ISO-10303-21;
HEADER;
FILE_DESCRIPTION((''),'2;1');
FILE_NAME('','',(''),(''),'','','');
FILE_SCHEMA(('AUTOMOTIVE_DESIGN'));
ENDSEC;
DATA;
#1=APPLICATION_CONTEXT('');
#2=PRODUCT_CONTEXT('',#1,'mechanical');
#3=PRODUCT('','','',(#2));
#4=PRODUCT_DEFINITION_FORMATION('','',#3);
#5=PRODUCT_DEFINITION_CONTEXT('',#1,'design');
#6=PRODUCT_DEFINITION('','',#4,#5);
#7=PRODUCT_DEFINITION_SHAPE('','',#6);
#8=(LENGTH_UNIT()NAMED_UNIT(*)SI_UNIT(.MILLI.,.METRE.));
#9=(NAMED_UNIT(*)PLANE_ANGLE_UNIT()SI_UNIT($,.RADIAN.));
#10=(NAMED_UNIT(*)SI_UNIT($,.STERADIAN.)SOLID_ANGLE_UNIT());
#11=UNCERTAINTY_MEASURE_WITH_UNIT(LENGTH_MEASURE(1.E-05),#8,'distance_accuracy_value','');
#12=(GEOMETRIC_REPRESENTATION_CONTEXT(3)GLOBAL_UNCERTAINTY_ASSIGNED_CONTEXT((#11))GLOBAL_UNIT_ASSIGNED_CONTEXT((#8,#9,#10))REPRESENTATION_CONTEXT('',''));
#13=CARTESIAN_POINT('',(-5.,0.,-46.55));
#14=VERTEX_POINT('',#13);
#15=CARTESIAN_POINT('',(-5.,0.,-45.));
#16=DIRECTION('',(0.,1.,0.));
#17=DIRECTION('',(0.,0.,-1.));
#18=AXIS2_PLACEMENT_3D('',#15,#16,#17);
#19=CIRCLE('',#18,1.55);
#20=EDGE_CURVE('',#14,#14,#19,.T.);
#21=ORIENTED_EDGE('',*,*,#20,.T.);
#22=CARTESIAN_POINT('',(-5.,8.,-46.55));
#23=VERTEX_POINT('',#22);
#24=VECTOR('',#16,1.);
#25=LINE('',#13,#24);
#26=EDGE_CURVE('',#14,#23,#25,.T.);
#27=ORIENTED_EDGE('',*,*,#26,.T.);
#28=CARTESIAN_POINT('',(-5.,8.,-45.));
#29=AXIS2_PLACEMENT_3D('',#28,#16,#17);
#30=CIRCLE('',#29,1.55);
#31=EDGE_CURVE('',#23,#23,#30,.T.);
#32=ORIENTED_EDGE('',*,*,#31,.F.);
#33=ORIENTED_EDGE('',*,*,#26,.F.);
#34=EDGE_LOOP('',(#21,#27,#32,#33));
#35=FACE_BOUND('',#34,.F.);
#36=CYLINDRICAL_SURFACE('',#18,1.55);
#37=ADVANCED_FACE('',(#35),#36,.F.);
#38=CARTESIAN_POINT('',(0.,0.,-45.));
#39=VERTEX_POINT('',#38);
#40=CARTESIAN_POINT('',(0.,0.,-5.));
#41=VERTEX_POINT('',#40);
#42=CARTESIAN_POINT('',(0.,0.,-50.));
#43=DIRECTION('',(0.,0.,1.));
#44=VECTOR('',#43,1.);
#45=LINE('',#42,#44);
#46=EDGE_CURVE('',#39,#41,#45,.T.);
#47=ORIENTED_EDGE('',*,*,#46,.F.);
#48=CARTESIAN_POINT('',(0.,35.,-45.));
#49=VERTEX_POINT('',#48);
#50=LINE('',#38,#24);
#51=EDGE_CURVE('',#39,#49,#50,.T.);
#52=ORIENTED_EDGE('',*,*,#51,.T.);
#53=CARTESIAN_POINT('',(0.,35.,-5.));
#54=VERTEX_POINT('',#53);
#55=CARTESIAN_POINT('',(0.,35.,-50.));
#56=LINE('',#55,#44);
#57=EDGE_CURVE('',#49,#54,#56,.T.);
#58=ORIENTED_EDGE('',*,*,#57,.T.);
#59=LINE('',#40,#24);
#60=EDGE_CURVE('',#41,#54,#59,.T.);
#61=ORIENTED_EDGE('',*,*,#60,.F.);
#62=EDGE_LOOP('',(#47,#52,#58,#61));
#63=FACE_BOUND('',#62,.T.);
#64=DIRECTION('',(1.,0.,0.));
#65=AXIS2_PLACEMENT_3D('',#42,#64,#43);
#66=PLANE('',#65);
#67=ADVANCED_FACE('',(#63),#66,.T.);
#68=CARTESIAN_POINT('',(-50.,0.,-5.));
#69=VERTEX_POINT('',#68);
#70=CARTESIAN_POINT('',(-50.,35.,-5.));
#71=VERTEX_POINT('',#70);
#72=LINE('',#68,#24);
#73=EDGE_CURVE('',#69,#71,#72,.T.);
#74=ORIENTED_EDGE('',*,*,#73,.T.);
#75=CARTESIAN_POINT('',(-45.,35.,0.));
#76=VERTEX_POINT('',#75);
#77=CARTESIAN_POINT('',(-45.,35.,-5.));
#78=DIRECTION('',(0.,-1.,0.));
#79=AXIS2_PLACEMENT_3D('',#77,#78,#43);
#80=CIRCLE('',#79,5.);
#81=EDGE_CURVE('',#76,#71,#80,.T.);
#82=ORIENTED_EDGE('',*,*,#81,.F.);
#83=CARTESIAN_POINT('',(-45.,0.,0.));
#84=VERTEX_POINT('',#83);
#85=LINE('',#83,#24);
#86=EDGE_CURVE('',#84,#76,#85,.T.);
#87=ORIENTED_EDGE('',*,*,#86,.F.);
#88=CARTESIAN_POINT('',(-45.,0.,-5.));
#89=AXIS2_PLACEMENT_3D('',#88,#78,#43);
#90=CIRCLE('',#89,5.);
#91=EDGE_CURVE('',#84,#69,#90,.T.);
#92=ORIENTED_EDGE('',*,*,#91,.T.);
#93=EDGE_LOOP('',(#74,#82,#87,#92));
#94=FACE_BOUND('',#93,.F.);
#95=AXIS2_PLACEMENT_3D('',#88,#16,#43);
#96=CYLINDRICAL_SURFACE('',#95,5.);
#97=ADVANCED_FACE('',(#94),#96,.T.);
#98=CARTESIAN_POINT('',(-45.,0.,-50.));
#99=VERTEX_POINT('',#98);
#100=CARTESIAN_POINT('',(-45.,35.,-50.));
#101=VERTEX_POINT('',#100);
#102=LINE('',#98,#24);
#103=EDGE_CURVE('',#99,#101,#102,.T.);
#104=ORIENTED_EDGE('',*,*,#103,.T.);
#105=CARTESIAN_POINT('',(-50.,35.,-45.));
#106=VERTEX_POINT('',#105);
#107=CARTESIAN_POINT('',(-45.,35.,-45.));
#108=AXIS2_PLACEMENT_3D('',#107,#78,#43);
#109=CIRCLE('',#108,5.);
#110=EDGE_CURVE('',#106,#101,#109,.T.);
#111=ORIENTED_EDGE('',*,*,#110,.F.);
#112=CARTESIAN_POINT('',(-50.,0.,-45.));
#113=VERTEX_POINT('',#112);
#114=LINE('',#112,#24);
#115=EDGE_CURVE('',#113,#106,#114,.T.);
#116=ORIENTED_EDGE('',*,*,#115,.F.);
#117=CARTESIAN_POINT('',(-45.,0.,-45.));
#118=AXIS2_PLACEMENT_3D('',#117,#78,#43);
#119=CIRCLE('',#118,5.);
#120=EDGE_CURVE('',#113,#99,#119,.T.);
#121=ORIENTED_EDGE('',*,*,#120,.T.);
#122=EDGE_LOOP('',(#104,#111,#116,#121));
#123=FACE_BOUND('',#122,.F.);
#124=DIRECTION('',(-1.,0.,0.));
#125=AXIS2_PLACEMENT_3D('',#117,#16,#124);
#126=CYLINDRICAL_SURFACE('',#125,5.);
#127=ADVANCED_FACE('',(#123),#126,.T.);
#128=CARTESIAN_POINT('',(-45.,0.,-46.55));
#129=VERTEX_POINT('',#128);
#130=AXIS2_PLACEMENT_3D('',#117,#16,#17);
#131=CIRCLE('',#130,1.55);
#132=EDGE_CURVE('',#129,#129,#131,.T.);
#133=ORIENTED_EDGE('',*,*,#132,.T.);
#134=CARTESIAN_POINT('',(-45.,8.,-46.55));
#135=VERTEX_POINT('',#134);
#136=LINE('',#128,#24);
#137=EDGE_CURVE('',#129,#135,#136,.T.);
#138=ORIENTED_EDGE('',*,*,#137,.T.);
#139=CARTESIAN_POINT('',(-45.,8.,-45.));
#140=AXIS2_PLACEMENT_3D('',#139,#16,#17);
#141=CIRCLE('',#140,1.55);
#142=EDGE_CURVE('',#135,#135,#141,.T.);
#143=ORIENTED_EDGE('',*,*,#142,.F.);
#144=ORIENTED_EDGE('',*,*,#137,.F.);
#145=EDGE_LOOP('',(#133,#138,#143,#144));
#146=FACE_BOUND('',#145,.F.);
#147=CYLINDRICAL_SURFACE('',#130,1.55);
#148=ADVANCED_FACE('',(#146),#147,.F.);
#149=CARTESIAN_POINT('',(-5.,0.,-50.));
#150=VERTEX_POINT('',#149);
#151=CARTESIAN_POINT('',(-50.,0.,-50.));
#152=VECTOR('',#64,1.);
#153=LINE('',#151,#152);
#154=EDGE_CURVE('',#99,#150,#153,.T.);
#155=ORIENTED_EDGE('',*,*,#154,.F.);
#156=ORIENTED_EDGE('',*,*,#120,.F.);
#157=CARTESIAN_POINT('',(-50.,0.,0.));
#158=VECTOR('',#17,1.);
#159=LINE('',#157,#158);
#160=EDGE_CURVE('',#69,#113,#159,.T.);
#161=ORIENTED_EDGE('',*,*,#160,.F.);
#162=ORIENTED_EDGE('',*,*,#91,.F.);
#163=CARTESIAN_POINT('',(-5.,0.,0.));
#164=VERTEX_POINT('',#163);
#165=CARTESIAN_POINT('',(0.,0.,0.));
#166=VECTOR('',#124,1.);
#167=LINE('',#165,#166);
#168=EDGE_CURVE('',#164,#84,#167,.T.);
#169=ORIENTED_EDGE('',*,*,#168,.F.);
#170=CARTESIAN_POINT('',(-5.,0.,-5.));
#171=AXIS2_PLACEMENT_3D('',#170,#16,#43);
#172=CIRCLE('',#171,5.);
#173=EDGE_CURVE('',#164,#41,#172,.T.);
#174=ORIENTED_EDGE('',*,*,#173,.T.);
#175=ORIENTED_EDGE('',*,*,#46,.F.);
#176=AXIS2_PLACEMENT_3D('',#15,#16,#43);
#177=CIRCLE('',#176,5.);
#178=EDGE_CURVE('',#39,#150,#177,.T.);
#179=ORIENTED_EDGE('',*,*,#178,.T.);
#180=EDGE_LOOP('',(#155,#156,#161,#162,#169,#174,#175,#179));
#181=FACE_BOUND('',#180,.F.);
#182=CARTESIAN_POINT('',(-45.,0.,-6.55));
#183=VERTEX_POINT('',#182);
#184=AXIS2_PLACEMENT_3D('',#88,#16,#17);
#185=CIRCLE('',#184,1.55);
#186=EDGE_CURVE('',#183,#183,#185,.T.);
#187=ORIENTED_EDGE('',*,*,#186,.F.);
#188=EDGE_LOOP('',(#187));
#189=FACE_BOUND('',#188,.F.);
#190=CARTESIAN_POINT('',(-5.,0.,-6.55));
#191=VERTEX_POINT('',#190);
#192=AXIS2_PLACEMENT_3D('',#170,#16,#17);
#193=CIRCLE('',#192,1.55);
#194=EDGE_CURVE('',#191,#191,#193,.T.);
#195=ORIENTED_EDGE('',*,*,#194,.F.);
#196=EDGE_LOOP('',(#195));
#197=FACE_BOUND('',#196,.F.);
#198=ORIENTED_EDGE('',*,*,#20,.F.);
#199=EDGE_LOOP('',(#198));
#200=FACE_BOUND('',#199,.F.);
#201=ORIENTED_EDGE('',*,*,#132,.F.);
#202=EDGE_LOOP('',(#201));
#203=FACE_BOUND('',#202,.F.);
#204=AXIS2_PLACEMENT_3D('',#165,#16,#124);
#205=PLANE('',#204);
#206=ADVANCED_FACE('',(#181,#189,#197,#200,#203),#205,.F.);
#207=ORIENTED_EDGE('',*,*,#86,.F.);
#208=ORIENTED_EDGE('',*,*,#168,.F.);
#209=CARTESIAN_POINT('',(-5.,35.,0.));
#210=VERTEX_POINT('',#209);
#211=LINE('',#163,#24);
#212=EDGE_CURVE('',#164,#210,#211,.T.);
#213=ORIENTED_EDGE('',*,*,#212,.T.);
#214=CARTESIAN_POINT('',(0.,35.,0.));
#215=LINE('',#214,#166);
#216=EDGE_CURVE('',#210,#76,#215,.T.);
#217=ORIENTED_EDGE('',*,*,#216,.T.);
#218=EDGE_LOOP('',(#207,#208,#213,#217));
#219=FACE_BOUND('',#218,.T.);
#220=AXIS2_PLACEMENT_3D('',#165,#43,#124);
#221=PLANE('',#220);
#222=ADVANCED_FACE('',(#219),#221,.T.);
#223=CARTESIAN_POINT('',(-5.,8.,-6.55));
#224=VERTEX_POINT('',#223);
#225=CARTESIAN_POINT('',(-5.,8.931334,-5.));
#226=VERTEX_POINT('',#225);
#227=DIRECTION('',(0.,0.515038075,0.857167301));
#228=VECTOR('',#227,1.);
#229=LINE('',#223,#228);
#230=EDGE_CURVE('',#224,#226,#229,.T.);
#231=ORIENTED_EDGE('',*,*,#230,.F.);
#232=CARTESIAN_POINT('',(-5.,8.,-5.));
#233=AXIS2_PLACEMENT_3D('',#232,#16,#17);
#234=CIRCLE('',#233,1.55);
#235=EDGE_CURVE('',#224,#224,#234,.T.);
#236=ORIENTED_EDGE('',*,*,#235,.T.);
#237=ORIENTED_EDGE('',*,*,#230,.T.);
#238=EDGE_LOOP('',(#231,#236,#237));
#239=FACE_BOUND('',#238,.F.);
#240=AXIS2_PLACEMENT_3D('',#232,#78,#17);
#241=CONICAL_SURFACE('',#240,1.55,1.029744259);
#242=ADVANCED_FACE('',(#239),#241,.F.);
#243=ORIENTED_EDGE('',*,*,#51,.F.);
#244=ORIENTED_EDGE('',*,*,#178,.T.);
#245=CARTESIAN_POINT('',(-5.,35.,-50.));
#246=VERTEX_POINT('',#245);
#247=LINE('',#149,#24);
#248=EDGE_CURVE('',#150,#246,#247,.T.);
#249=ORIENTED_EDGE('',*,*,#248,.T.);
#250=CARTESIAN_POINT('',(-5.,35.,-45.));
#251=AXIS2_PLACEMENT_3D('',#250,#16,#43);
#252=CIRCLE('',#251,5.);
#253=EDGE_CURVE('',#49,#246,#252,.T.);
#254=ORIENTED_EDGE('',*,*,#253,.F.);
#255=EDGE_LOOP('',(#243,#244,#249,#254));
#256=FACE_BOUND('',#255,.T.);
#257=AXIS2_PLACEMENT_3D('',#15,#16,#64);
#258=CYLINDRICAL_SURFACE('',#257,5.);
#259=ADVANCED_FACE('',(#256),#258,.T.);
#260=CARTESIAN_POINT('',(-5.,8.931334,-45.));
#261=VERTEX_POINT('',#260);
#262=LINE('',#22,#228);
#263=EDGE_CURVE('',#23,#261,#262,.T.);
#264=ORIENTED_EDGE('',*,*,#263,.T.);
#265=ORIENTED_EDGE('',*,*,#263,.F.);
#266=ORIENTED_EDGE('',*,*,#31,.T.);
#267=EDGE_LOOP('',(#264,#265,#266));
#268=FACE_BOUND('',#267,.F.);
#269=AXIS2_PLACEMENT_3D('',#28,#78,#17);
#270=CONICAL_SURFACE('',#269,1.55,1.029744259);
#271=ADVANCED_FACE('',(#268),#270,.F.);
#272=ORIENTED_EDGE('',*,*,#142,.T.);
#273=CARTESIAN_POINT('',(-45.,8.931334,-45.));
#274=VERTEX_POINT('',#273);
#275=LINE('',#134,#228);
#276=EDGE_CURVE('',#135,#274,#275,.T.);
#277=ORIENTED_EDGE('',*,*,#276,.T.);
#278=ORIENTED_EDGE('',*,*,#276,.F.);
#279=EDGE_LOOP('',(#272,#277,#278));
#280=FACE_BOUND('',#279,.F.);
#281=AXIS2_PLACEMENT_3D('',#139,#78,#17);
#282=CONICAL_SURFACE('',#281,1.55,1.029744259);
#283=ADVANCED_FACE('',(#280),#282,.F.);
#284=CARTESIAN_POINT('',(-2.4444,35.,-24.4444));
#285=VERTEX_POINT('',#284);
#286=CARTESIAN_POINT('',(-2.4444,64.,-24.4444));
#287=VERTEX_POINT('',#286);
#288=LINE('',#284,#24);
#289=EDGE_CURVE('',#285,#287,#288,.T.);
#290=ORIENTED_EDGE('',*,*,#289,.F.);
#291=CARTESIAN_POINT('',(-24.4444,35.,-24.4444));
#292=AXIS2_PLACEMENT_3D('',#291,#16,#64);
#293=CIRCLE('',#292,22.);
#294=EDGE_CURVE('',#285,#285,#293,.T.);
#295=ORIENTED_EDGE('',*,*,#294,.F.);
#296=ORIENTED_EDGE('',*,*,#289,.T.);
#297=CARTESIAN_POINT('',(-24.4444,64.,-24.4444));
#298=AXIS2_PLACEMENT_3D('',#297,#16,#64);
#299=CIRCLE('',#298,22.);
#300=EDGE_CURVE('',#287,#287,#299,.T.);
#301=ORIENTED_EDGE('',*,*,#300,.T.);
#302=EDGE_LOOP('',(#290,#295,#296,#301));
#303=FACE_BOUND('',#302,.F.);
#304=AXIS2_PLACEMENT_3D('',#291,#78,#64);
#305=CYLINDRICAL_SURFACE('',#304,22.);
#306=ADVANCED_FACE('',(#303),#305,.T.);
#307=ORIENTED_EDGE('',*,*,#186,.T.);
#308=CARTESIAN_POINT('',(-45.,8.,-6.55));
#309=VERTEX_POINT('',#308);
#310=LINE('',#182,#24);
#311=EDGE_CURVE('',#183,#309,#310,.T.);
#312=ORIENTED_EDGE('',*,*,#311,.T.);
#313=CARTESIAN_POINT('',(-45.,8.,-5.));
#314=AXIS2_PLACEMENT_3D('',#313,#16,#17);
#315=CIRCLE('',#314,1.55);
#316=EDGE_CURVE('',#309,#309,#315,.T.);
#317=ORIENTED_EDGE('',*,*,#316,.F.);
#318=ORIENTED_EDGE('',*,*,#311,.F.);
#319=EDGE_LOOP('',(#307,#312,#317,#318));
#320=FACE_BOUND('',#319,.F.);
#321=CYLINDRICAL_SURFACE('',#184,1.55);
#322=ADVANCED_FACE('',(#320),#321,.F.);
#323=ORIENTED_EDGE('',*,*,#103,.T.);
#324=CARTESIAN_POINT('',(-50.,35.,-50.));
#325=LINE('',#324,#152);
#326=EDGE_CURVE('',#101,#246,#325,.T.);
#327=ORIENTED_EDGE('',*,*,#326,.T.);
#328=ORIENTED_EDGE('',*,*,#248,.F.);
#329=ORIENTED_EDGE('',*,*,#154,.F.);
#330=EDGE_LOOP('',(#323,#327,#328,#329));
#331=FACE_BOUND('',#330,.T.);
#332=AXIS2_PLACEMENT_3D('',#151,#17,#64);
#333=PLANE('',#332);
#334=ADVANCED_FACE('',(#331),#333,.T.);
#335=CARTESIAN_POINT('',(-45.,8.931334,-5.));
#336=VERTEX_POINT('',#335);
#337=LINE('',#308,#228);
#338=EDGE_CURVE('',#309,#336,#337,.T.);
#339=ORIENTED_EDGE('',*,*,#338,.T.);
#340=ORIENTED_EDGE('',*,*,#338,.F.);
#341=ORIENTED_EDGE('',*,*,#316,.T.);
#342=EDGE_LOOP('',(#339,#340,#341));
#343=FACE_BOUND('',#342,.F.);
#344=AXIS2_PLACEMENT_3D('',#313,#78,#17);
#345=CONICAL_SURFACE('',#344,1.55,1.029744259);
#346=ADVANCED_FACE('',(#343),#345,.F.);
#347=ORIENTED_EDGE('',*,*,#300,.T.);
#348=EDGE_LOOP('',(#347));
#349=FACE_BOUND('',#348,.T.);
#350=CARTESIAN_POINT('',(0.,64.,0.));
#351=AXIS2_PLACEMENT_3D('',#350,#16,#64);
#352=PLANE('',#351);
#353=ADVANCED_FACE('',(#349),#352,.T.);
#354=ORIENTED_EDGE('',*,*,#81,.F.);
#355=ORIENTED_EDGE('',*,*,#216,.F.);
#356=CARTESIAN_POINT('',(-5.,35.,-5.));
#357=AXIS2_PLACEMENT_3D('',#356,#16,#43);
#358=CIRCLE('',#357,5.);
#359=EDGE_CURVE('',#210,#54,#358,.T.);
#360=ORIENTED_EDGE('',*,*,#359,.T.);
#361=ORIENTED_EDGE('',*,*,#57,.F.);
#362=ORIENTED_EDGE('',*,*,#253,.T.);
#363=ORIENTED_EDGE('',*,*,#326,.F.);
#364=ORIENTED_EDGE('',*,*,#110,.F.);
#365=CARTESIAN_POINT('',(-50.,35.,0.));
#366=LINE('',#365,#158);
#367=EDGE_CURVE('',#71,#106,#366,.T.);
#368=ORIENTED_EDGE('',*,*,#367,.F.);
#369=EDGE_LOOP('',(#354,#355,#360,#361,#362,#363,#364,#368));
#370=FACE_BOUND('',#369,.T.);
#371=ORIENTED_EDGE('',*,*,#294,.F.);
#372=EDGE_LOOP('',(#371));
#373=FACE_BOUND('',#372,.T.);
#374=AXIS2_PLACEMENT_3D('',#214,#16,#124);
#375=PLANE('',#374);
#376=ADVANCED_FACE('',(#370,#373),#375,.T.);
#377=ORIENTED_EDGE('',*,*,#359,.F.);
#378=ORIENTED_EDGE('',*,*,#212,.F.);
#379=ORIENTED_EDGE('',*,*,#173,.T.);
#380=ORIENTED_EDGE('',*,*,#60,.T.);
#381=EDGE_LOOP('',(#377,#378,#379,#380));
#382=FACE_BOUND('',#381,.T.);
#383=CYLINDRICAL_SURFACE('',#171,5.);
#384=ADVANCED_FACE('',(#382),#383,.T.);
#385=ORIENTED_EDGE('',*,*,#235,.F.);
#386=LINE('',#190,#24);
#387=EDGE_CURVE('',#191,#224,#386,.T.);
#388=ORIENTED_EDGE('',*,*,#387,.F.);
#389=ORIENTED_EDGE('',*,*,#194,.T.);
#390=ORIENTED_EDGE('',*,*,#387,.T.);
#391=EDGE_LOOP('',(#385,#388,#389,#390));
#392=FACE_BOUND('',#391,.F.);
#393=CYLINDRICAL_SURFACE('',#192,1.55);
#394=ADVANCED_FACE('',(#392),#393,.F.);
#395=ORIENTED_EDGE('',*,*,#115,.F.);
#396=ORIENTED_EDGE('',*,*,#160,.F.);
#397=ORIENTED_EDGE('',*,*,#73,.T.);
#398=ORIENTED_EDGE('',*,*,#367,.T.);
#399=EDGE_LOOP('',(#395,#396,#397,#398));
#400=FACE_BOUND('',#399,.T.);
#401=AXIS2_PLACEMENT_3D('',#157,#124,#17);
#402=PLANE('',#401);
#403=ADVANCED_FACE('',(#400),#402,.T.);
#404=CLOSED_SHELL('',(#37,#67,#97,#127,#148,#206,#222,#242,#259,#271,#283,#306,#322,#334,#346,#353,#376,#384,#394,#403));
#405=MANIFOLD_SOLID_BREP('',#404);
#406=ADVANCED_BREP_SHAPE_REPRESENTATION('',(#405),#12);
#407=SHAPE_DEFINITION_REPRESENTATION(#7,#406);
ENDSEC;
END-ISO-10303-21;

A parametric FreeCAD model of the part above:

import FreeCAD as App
import Part
import Sketcher

V = App.Vector
Q = App.Units.Quantity


def edges_at(feature, points):
    """Names of the edges that pass closest to the given points."""
    edges = feature.Shape.Edges
    near = lambda p: min(range(len(edges)), key=lambda i: edges[i].distToShape(Part.Vertex(*p))[0])
    return sorted({f"Edge{near(p) + 1}" for p in points})


def add_polygon(sketch, points):
    """Adds a closed chain of lines whose ends are joined by coincident constraints."""
    first, n = sketch.GeometryCount, len(points)
    for a, b in zip(points, points[1:] + points[:1]):
        sketch.addGeometry(Part.LineSegment(App.Vector(*a, 0), App.Vector(*b, 0)), False)
    for i in range(n):
        sketch.addConstraint(Sketcher.Constraint("Coincident", first + i, 2, first + (i + 1) % n, 1))

doc = App.newDocument("Part")
body = doc.addObject("PartDesign::Body", "Body")

sketch1 = body.newObject("Sketcher::SketchObject", "Sketch")
sketch1.AttachmentSupport = (doc.getObject("XZ_Plane"), [""])
sketch1.MapMode = "FlatFace"
add_polygon(sketch1, [(-50, 0), (0, 0), (0, -50), (-50, -50)])
sketch1.addConstraint([
    Sketcher.Constraint("Horizontal", 0),
    Sketcher.Constraint("Vertical", 1),
    Sketcher.Constraint("Horizontal", 2),
    Sketcher.Constraint("Vertical", 3),
    Sketcher.Constraint("Coincident", 0, 2, -1, 1),
    Sketcher.Constraint("Equal", 2, 1),
    Sketcher.Constraint("DistanceX", 0, 1, 0, 2, Q("50 mm")),
])
pad1 = body.newObject("PartDesign::Pad", "Pad")
pad1.Profile = sketch1
pad1.Length = 35
pad1.Reversed = True

sketch2 = body.newObject("Sketcher::SketchObject", "Sketch001")
sketch2.AttachmentSupport = (doc.getObject("XZ_Plane"), [""])
sketch2.MapMode = "FlatFace"
sketch2.AttachmentOffset = App.Placement(V(0, 0, -35), App.Rotation())
sketch2.addGeometry(Part.Circle(V(-24, -24, 0), V(0, 0, 1), 22), False)
sketch2.addConstraint([
    Sketcher.Constraint("Diameter", 0, Q("44 mm")),
    Sketcher.Constraint("DistanceX", 0, 3, -1, 1, Q("24.4444 mm")),
    Sketcher.Constraint("DistanceY", 0, 3, -1, 1, Q("24.4444 mm")),
])
pad2 = body.newObject("PartDesign::Pad", "Pad001")
pad2.Profile = sketch2
pad2.Length = 29
pad2.Reversed = True
doc.recompute()

fillet = body.newObject("PartDesign::Fillet", "Fillet")
fillet.Base = (pad2, edges_at(pad2, [
    (-50, 17.5, 0),
    (0, 17.5, 0),
    (0, 17.5, -50),
    (-50, 17.5, -50),
]))
fillet.Radius = 5

sketch3 = body.newObject("Sketcher::SketchObject", "Sketch002")
sketch3.AttachmentSupport = (doc.getObject("XZ_Plane"), [""])
sketch3.MapMode = "FlatFace"
sketch3.addGeometry([
    Part.Circle(V(-5, -5, 0), V(0, 0, 1), 1.6),
    Part.Circle(V(-5, -45, 0), V(0, 0, 1), 1.6),
    Part.Circle(V(-45, -45, 0), V(0, 0, 1), 1.6),
    Part.Circle(V(-45, -5, 0), V(0, 0, 1), 1.6),
], False)
sketch3.addConstraint([
    Sketcher.Constraint("Equal", 0, 1),
    Sketcher.Constraint("Equal", 1, 2),
    Sketcher.Constraint("Equal", 2, 3),
    Sketcher.Constraint("Horizontal", 1, 3, 2, 3),
    Sketcher.Constraint("Horizontal", 0, 3, 3, 3),
    Sketcher.Constraint("Vertical", 0, 3, 1, 3),
    Sketcher.Constraint("Vertical", 2, 3, 3, 3),
    Sketcher.Constraint("Diameter", 0, Q("3.1 mm")),
    Sketcher.Constraint("DistanceX", 0, 3, -1, 1, Q("5 mm")),
    Sketcher.Constraint("DistanceY", 0, 3, -1, 1, Q("5 mm")),
    Sketcher.Constraint("DistanceY", 1, 3, -1, 1, Q("45 mm")),
    Sketcher.Constraint("DistanceX", 2, 3, -1, 1, Q("45 mm")),
])
doc.recompute()
hole = body.newObject("PartDesign::Hole", "Hole")
hole.Profile = sketch3
hole.ThreadType = "None"
hole.Diameter = 3.1
hole.DepthType = "Dimension"
hole.Depth = 8
hole.DrillPoint = "Angled"
hole.DrillPointAngle = 118

doc.recompute()
